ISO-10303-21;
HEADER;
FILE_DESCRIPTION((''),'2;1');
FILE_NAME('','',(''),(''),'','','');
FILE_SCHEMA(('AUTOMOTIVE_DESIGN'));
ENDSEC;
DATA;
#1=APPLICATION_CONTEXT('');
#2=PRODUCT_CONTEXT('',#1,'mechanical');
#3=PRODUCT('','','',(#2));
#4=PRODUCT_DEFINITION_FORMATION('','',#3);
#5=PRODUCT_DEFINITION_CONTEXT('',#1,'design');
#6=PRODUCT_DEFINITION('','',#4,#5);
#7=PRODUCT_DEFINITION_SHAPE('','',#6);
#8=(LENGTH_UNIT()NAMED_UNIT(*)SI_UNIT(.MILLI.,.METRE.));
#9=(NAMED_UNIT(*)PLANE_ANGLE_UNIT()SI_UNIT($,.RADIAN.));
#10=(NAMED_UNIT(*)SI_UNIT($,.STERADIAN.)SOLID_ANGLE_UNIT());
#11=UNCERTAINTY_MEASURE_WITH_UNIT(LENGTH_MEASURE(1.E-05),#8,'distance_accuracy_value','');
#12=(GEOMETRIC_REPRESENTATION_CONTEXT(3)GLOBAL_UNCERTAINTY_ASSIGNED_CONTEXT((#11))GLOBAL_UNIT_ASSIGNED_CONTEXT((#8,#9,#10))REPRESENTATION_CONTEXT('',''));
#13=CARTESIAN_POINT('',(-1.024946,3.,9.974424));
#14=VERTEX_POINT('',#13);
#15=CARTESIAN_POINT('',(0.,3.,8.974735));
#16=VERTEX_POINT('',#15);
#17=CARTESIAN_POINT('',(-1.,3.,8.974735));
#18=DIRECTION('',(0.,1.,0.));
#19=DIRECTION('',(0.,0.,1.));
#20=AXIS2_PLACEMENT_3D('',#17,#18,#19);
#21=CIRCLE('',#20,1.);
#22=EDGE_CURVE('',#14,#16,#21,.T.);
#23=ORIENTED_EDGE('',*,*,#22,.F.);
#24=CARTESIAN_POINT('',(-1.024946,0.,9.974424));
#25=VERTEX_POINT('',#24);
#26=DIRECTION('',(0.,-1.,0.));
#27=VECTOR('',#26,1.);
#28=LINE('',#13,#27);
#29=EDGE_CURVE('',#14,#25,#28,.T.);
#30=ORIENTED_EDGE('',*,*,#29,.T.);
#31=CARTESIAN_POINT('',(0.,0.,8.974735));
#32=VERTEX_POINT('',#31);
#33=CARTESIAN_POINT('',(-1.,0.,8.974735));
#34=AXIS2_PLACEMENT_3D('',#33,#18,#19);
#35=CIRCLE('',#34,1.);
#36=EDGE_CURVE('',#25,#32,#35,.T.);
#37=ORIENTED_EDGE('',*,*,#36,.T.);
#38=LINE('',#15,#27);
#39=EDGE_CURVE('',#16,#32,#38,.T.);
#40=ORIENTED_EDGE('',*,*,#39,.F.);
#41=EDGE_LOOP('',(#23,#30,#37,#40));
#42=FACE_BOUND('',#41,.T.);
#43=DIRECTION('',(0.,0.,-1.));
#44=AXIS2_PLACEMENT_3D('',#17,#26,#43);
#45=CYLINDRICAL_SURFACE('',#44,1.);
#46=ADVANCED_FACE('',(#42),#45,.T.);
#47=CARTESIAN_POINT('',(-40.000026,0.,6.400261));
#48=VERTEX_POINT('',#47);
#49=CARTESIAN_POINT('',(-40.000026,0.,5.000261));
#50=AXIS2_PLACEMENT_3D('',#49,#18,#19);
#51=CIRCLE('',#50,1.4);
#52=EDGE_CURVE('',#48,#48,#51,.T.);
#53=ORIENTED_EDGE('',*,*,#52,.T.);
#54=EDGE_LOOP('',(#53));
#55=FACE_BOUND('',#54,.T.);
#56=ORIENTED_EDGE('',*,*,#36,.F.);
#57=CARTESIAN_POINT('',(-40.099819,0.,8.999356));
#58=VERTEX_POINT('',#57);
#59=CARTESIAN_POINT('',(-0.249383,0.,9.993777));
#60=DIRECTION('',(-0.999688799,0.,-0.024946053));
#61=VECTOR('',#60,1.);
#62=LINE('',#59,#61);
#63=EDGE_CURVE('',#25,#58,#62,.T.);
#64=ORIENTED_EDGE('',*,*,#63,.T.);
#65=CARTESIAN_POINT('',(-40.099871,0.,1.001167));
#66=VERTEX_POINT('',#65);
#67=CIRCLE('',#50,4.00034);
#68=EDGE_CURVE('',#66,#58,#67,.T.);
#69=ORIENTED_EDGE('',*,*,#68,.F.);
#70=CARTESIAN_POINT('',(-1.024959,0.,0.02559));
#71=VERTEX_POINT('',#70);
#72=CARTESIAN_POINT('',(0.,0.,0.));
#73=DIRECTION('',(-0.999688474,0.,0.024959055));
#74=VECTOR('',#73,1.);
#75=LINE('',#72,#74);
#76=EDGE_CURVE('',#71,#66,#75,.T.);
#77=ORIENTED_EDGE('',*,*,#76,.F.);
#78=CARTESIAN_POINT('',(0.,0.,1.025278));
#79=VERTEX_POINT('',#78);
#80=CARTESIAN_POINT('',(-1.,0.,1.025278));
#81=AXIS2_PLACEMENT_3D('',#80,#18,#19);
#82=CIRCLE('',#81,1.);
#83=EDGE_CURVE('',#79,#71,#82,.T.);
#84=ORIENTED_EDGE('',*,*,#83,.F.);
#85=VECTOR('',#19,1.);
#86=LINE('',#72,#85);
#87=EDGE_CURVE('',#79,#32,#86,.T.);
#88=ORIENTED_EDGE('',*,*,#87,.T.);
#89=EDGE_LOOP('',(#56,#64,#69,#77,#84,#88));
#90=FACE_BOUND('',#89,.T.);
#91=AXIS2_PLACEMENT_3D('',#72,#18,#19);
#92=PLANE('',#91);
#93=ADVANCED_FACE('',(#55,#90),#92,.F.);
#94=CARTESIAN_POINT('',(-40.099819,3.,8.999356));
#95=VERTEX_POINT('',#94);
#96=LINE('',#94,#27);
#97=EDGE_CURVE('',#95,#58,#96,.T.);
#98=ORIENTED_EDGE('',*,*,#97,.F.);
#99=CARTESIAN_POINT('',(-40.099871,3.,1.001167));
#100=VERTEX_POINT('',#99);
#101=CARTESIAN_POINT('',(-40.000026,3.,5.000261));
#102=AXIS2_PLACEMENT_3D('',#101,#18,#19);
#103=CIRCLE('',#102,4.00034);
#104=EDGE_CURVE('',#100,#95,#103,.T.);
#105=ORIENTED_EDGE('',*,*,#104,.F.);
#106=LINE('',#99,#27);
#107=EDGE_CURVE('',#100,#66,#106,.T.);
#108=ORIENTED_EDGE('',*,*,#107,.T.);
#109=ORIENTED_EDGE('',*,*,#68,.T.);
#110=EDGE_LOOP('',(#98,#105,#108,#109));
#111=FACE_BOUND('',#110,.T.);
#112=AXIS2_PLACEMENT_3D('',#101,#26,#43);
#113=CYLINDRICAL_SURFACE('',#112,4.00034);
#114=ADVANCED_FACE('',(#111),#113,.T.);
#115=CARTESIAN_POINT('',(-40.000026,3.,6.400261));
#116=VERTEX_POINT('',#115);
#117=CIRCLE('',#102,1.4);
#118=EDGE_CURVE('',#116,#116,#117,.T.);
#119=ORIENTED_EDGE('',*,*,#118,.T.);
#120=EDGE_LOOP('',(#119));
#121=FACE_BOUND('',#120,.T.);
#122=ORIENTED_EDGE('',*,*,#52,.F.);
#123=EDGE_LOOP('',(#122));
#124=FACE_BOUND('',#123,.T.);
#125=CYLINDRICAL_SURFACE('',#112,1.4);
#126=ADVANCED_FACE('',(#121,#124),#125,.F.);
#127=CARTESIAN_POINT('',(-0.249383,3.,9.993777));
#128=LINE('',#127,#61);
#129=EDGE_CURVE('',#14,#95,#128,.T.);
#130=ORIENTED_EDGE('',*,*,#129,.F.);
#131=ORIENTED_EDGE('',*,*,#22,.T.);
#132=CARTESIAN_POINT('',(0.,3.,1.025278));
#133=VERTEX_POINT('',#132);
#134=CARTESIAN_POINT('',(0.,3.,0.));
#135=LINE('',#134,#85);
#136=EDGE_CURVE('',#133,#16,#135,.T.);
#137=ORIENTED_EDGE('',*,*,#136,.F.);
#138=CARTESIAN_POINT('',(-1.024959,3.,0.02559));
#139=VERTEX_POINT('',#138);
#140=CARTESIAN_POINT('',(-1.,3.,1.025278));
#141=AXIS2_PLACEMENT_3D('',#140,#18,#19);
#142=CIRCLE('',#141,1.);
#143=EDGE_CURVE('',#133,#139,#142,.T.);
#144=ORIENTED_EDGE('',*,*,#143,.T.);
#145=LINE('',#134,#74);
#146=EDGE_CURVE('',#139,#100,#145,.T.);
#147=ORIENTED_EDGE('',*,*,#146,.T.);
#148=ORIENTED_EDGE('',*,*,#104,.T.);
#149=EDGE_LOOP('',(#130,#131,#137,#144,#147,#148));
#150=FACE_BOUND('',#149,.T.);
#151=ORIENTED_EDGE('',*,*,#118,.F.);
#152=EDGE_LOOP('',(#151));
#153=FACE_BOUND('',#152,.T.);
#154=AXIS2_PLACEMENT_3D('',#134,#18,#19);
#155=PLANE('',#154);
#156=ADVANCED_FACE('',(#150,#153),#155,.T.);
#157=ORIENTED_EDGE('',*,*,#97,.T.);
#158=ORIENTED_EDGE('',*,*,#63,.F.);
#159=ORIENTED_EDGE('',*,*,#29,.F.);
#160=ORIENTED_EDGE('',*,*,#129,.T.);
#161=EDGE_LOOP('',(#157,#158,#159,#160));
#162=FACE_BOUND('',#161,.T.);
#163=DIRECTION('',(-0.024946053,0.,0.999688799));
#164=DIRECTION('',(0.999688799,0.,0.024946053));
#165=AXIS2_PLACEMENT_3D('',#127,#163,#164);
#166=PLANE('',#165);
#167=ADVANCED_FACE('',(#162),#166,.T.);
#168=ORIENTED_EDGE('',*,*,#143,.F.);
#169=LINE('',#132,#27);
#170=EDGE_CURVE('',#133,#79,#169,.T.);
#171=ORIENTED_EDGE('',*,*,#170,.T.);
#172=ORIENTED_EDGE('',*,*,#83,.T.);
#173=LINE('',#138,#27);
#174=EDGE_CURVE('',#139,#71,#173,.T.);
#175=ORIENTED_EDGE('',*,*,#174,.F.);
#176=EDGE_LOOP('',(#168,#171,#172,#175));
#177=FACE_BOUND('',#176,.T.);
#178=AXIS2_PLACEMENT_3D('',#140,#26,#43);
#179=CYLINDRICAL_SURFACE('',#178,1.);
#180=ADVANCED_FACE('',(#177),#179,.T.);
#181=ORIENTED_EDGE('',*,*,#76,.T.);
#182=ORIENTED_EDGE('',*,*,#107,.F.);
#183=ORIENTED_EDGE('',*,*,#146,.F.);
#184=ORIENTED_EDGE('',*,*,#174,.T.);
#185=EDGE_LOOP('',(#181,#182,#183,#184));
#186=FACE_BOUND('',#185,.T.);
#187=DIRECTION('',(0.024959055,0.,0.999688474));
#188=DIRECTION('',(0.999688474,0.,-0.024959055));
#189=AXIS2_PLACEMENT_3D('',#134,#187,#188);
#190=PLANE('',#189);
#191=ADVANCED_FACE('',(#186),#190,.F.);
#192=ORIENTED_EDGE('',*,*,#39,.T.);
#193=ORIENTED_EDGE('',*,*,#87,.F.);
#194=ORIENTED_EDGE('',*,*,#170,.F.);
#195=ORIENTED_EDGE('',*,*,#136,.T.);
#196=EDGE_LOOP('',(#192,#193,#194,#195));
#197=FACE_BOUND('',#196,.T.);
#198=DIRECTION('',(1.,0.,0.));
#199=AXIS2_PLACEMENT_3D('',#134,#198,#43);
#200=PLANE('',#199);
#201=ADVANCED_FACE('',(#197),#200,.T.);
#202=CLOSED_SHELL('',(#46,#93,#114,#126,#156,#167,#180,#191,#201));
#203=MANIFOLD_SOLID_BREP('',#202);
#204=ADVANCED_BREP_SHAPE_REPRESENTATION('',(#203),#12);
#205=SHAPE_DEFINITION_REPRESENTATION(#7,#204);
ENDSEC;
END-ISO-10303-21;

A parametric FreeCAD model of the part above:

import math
import FreeCAD as App
import Part
import Sketcher
from FreeCAD import Vector

doc = App.newDocument("Part")
params = doc.addObject("Spreadsheet::Sheet", "Params")
for row, (alias, value) in enumerate([
    ("sketch1_radius", "1 mm"),
    ("sketch1_diameter", "2.8 mm"),
    ("pad1_length", "3 mm"),
], start=1):
    params.set(f"A{row}", alias)
    params.set(f"B{row}", "=" + value)
    params.setAlias(f"B{row}", alias)

body = doc.addObject("PartDesign::Body", "Body")

sketch1 = body.newObject("Sketcher::SketchObject", "Sketch")
sketch1.AttachmentSupport = (doc.getObject("XZ_Plane"), [""])
sketch1.MapMode = "FlatFace"
sketch1.addGeometry([
    Part.LineSegment(Vector(0, 9, 0), Vector(0, 1, 0)),
    Part.ArcOfCircle(Part.Circle(Vector(-1, 1, 0), Vector(0, 0, 1), 1), math.radians(-91), math.radians(0)),
    Part.LineSegment(Vector(-1, 0, 0), Vector(-40.1, 1, 0)),
    Part.ArcOfCircle(Part.Circle(Vector(-40, 5, 0), Vector(0, 0, 1), 4), math.radians(91), math.radians(269)),
    Part.LineSegment(Vector(-40.1, 9, 0), Vector(-1, 10, 0)),
    Part.ArcOfCircle(Part.Circle(Vector(-1, 9, 0), Vector(0, 0, 1), 1), math.radians(0), math.radians(91)),
    Part.Circle(Vector(-40, 5, 0), Vector(0, 0, 1), 1.4),
], False)
sketch1.addConstraint([
    Sketcher.Constraint("Tangent", 0, 2, 1, 2),
    Sketcher.Constraint("Tangent", 1, 1, 2, 1),
    Sketcher.Constraint("Tangent", 2, 2, 3, 2),
    Sketcher.Constraint("Tangent", 3, 1, 4, 1),
    Sketcher.Constraint("Tangent", 4, 2, 5, 2),
    Sketcher.Constraint("Tangent", 5, 1, 0, 1),
    Sketcher.Constraint("Vertical", 0),
    Sketcher.Constraint("Coincident", 6, 3, 3, 3),
    Sketcher.Constraint("Equal", 1, 5),
    Sketcher.Constraint("PointOnObject", 0, 2, -2),
    Sketcher.Constraint("Radius", 1, 1.0),
    Sketcher.Constraint("Diameter", 6, 2.8),
    Sketcher.Constraint("Radius", 3, 4.00034),
    Sketcher.Constraint("Distance", 2, 39.087088),
    Sketcher.Constraint("DistanceY", 0, 2, 0, 1, 7.949456),
    Sketcher.Constraint("DistanceY", -1, 1, 1, 3, 1.025278),
    Sketcher.Constraint("DistanceY", -1, 1, 3, 3, 5.000261),
])
sketch1.setExpression("Constraints[10]", "Params.sketch1_radius")
sketch1.setExpression("Constraints[11]", "Params.sketch1_diameter")
pad1 = body.newObject("PartDesign::Pad", "Pad")
pad1.Profile = sketch1
pad1.setExpression("Length", "Params.pad1_length")
pad1.Reversed = True

doc.recompute()
